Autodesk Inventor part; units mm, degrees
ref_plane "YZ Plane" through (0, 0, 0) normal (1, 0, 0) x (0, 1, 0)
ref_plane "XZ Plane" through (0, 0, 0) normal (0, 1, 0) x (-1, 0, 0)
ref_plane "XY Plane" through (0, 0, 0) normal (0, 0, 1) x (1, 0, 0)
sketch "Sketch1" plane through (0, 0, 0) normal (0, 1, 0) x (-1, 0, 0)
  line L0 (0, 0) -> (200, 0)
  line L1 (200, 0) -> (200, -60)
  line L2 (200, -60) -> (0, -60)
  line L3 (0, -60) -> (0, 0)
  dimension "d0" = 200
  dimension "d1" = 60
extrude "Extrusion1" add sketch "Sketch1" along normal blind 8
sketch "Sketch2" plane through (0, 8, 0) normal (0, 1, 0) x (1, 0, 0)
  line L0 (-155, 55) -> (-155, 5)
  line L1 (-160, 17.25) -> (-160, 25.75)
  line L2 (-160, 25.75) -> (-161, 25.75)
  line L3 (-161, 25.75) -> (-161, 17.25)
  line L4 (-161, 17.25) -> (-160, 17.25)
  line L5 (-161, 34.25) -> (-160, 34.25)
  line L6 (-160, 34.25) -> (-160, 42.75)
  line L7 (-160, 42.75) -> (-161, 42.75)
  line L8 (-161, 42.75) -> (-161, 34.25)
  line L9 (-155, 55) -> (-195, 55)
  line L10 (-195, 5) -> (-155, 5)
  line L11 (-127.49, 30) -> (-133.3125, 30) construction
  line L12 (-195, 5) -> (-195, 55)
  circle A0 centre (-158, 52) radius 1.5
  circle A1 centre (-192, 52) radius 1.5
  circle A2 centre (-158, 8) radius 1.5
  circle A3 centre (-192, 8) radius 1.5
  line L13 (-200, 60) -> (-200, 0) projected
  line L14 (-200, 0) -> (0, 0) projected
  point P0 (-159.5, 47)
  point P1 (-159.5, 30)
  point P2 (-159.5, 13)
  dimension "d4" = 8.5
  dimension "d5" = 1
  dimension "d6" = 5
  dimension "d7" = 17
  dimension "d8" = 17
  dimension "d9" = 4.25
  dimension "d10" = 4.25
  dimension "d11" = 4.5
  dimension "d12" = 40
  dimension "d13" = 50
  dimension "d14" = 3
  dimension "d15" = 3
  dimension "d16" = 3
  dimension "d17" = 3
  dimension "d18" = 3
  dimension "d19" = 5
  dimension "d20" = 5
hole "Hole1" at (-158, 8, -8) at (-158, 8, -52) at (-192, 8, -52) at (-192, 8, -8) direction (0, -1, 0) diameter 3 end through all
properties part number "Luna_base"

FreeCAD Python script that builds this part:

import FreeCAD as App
import Part
import Sketcher

V = App.Vector
Q = App.Units.Quantity

doc = App.newDocument("Part")
body = doc.addObject("PartDesign::Body", "Body")

# Sketch on XZ plane
sketch1 = body.newObject("Sketcher::SketchObject", "Sketch")
sketch1.AttachmentSupport = (doc.getObject("XZ_Plane"), [""])
sketch1.MapMode = "FlatFace"
sketch1.addGeometry([
    Part.LineSegment(V(-200, 0, 0), V(0, 0, 0)),
    Part.LineSegment(V(0, 0, 0), V(0, -60, 0)),
    Part.LineSegment(V(0, -60, 0), V(-200, -60, 0)),
    Part.LineSegment(V(-200, -60, 0), V(-200, 0, 0)),
], False)
sketch1.addConstraint([
    Sketcher.Constraint("Coincident", 0, 2, 1, 1),
    Sketcher.Constraint("Coincident", 1, 2, 2, 1),
    Sketcher.Constraint("Coincident", 2, 2, 3, 1),
    Sketcher.Constraint("Coincident", 3, 2, 0, 1),
    Sketcher.Constraint("Horizontal", 0),
    Sketcher.Constraint("Vertical", 1),
    Sketcher.Constraint("Horizontal", 2),
    Sketcher.Constraint("Vertical", 3),
    Sketcher.Constraint("Coincident", 0, 2, -1, 1),
    Sketcher.Constraint("DistanceX", 0, 1, 0, 2, Q("200 mm")),
    Sketcher.Constraint("DistanceY", 1, 2, 1, 1, Q("60 mm")),
])
pad1 = body.newObject("PartDesign::Pad", "Pad")
pad1.Profile = sketch1
pad1.Length = 8
pad1.Reversed = True

# Sketch on XZ plane
sketch2 = body.newObject("Sketcher::SketchObject", "Sketch001")
sketch2.AttachmentSupport = (doc.getObject("XZ_Plane"), [""])
sketch2.MapMode = "FlatFace"
sketch2.AttachmentOffset = App.Placement(V(0, 0, -8), App.Rotation())
sketch2.addGeometry([
    Part.Circle(V(-158, -8, 0), V(0, 0, 1), 1.5),
    Part.Circle(V(-158, -52, 0), V(0, 0, 1), 1.5),
    Part.Circle(V(-192, -52, 0), V(0, 0, 1), 1.5),
    Part.Circle(V(-192, -8, 0), V(0, 0, 1), 1.5),
], False)
sketch2.addConstraint([
    Sketcher.Constraint("Equal", 0, 1),
    Sketcher.Constraint("Equal", 1, 2),
    Sketcher.Constraint("Equal", 2, 3),
    Sketcher.Constraint("Horizontal", 1, 3, 2, 3),
    Sketcher.Constraint("Horizontal", 0, 3, 3, 3),
    Sketcher.Constraint("Vertical", 0, 3, 1, 3),
    Sketcher.Constraint("Vertical", 2, 3, 3, 3),
    Sketcher.Constraint("Diameter", 0, Q("3 mm")),
    Sketcher.Constraint("DistanceX", 0, 3, -1, 1, Q("158 mm")),
    Sketcher.Constraint("DistanceY", 0, 3, -1, 1, Q("8 mm")),
    Sketcher.Constraint("DistanceY", 1, 3, -1, 1, Q("52 mm")),
    Sketcher.Constraint("DistanceX", 2, 3, -1, 1, Q("192 mm")),
])
doc.recompute()
hole = body.newObject("PartDesign::Hole", "Hole")
hole.Profile = sketch2
hole.ThreadType = "None"
hole.Diameter = 3
hole.DepthType = "ThroughAll"
hole.Reversed = True

doc.recompute()
